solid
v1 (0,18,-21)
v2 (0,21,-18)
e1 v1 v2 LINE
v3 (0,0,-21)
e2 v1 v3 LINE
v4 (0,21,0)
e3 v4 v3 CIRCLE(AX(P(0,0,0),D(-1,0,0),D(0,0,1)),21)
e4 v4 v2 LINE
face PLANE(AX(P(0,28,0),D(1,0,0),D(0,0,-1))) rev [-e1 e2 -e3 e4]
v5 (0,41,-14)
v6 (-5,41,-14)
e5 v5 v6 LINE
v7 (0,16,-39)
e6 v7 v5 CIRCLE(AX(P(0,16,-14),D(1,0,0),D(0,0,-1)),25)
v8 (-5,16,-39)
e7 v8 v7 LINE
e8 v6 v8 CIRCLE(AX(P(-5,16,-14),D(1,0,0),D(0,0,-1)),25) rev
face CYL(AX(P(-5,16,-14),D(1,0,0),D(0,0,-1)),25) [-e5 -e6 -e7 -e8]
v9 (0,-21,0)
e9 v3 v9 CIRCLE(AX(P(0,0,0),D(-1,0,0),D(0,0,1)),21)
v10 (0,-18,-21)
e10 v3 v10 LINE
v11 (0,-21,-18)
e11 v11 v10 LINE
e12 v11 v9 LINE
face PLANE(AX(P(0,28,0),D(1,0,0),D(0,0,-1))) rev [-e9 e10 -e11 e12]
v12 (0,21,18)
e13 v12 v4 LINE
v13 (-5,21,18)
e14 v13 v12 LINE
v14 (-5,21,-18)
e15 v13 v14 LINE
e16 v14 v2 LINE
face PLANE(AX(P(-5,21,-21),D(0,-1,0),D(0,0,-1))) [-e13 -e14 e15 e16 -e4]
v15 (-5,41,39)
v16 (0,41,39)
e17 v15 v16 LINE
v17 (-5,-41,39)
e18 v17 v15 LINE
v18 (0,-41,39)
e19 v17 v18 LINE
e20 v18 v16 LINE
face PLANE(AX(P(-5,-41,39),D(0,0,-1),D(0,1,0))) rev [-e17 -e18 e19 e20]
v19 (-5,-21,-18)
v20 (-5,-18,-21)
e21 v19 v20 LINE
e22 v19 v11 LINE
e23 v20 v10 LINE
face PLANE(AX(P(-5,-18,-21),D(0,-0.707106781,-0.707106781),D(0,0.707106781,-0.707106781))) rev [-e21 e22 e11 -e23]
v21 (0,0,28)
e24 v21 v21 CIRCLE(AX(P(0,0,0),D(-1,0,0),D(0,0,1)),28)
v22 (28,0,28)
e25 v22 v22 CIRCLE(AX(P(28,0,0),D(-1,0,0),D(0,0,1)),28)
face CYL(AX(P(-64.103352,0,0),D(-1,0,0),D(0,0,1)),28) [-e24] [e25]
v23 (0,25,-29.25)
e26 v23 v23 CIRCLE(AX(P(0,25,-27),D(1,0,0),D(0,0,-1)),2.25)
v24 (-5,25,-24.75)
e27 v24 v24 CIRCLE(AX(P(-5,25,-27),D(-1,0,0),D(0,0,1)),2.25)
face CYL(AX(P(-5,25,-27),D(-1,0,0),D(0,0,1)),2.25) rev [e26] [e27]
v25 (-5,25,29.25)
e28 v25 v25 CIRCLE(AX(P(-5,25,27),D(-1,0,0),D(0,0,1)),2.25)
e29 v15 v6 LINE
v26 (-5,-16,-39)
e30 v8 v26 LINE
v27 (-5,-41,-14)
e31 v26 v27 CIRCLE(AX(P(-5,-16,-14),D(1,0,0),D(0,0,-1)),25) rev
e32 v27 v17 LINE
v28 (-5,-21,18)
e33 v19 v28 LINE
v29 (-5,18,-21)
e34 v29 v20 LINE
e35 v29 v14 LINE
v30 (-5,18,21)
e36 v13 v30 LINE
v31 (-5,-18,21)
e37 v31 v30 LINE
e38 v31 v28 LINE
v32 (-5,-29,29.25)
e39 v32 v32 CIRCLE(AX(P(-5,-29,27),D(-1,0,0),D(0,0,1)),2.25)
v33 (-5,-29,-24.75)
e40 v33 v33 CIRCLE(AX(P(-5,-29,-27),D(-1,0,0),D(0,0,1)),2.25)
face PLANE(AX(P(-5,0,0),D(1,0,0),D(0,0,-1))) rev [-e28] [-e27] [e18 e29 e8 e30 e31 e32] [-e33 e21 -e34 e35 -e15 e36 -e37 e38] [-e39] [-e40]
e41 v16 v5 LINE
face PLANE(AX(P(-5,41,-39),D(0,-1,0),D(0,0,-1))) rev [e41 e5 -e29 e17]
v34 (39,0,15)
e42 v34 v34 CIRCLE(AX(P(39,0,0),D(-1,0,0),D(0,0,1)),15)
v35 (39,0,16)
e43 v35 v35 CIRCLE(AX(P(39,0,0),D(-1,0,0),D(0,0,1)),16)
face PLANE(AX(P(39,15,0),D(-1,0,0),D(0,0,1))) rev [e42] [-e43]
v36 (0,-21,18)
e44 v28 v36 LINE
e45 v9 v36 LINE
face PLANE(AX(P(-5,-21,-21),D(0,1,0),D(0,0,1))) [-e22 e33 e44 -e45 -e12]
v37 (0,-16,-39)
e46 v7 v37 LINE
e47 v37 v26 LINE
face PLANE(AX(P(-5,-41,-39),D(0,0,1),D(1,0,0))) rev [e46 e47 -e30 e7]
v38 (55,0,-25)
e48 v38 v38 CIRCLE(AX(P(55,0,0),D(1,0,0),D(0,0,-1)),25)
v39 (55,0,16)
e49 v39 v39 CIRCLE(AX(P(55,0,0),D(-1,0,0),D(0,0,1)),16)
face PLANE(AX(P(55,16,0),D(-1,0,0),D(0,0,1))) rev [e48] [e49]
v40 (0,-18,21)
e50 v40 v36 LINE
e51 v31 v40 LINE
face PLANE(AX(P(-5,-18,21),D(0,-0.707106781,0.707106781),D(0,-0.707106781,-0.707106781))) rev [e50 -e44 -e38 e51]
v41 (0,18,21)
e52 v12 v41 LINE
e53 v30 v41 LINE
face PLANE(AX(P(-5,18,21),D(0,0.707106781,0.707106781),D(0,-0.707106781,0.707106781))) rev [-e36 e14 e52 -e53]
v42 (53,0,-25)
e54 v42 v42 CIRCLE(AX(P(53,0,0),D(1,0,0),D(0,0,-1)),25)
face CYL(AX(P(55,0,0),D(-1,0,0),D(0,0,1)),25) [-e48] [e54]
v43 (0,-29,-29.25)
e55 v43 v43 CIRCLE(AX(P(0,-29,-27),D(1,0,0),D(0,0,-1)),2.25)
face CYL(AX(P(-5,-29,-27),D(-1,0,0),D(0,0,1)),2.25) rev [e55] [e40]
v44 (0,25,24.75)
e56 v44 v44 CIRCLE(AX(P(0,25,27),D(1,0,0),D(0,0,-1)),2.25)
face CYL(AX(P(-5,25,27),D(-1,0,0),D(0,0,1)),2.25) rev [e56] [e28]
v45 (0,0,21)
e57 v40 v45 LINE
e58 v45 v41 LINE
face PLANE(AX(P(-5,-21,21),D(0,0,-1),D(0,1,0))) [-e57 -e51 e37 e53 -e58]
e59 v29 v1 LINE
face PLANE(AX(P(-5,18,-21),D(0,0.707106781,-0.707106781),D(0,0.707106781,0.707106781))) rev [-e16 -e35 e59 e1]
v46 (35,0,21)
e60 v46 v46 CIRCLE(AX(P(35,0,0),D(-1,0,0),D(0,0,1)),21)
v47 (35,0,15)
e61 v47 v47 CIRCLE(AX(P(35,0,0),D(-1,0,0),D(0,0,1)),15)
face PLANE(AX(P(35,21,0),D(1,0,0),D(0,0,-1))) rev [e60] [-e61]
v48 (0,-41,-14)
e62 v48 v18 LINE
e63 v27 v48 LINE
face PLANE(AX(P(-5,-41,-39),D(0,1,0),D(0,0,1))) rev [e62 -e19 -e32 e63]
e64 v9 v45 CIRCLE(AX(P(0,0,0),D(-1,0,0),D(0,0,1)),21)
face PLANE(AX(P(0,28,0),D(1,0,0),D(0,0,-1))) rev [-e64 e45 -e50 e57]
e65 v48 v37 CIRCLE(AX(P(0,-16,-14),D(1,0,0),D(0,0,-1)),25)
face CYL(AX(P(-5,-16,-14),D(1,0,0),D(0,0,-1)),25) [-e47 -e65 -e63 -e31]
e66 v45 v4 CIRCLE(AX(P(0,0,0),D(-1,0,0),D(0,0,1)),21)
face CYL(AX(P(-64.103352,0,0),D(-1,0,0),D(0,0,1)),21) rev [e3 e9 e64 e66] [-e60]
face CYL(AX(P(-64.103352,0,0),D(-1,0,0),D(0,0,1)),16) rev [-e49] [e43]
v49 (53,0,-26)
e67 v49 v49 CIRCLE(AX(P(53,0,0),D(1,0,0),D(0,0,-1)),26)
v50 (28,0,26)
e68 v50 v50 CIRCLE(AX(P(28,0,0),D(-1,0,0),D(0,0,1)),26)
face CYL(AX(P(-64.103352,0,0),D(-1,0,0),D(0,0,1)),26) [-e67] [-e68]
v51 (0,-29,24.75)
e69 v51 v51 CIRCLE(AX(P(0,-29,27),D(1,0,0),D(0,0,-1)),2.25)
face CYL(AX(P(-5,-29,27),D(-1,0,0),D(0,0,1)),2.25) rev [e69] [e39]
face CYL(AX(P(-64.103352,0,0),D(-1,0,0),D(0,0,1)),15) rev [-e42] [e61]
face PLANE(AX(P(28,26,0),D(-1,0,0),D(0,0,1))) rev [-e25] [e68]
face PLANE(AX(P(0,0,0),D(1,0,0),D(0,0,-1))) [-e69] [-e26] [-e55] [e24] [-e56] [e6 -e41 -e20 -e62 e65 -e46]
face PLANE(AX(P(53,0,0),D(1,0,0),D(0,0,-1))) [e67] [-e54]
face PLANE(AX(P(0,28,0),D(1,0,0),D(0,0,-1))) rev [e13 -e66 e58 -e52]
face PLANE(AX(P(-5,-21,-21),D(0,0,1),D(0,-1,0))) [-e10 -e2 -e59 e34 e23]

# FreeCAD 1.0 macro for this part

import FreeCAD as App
import Part
import Sketcher


def edges_at(feature, points):
    """Names of the edges that pass closest to the given points."""
    edges = feature.Shape.Edges
    near = lambda p: min(range(len(edges)), key=lambda i: edges[i].distToShape(Part.Vertex(*p))[0])
    return sorted({f"Edge{near(p) + 1}" for p in points})


def add_polygon(sketch, points):
    """Adds a closed chain of lines whose ends are joined by coincident constraints."""
    first, n = sketch.GeometryCount, len(points)
    for a, b in zip(points, points[1:] + points[:1]):
        sketch.addGeometry(Part.LineSegment(App.Vector(*a, 0), App.Vector(*b, 0)), False)
    for i in range(n):
        sketch.addConstraint(Sketcher.Constraint("Coincident", first + i, 2, first + (i + 1) % n, 1))

doc = App.newDocument("Part")
body = doc.addObject("PartDesign::Body", "Body")

# Sketch on XY plane
sketch1 = doc.addObject("Sketcher::SketchObject", "Sketch")
body.addObject(sketch1)
sketch1.AttachmentSupport = (doc.XY_Plane, [""])
sketch1.MapMode = "FlatFace"
add_polygon(sketch1, [(0, 21), (35, 21), (35, 15), (39, 15), (39, 16), (55, 16), (55, 26), (28, 26), (28, 28), (0, 28)])  # lines 0-9
sketch1.addConstraint([
    Sketcher.Constraint("Horizontal", 0),
    Sketcher.Constraint("Vertical", 1),
    Sketcher.Constraint("Horizontal", 2),
    Sketcher.Constraint("Vertical", 3),
    Sketcher.Constraint("Horizontal", 4),
    Sketcher.Constraint("Vertical", 5),
    Sketcher.Constraint("Horizontal", 6),
    Sketcher.Constraint("Vertical", 7),
    Sketcher.Constraint("Horizontal", 8),
    Sketcher.Constraint("Vertical", 9),
    Sketcher.Constraint("PointOnObject", 8, 2, -2),
    Sketcher.Constraint("DistanceX", 0, 1, 0, 2, 35.0),
    Sketcher.Constraint("DistanceX", 2, 1, 2, 2, 4.0),
    Sketcher.Constraint("DistanceX", 4, 1, 4, 2, 16.0),
    Sketcher.Constraint("DistanceX", 6, 2, 6, 1, 27.0),
    Sketcher.Constraint("DistanceY", 1, 2, 1, 1, 6.0),
    Sketcher.Constraint("DistanceY", 3, 1, 3, 2, 1.0),
    Sketcher.Constraint("DistanceY", 5, 1, 5, 2, 10.0),
    Sketcher.Constraint("DistanceY", 7, 1, 7, 2, 2.0),
    Sketcher.Constraint("DistanceY", -1, 1, 0, 2, 21.0),
])
revolution = doc.addObject("PartDesign::Revolution", "Revolution")
body.addObject(revolution)
revolution.Profile = sketch1
revolution.ReferenceAxis = (sketch1, ["H_Axis"])
revolution.Angle = 360

# Sketch on YZ plane
sketch2 = doc.addObject("Sketcher::SketchObject", "Sketch001")
body.addObject(sketch2)
sketch2.AttachmentSupport = (doc.YZ_Plane, [""])
sketch2.MapMode = "FlatFace"
sketch2.AttachmentOffset = App.Placement(App.Vector(0, 0, 53), App.Rotation())
sketch2.addGeometry([
    Part.Circle(App.Vector(0, 0, 0), App.Vector(0, 0, 1), 28),
    Part.Circle(App.Vector(0, 0, 0), App.Vector(0, 0, 1), 25),
], False)
sketch2.addConstraint([
    Sketcher.Constraint("Coincident", 0, 3, -1, 1),
    Sketcher.Constraint("Coincident", 1, 3, -1, 1),
    Sketcher.Constraint("Diameter", 0, 55.0),
    Sketcher.Constraint("Diameter", 1, 50.0),
])
pocket1 = doc.addObject("PartDesign::Pocket", "Pocket")
body.addObject(pocket1)
pocket1.Profile = sketch2
pocket1.Length = 2
pocket1.Reversed = True

# Sketch on YZ plane
sketch3 = doc.addObject("Sketcher::SketchObject", "Sketch002")
body.addObject(sketch3)
sketch3.AttachmentSupport = (doc.YZ_Plane, [""])
sketch3.MapMode = "FlatFace"
add_polygon(sketch3, [(41, -39), (-41, -39), (-41, 39), (41, 39)])  # lines 0-3
add_polygon(sketch3, [(-21, 21), (-21, -21), (21, -21), (21, 21)])  # lines 4-7
sketch3.addConstraint([
    Sketcher.Constraint("Horizontal", 0),
    Sketcher.Constraint("Vertical", 1),
    Sketcher.Constraint("Horizontal", 2),
    Sketcher.Constraint("Vertical", 3),
    Sketcher.Constraint("Vertical", 4),
    Sketcher.Constraint("Horizontal", 5),
    Sketcher.Constraint("Vertical", 6),
    Sketcher.Constraint("Horizontal", 7),
    Sketcher.Constraint("Symmetric", 0, 2, 2, 2, -1, 1),
    Sketcher.Constraint("Symmetric", 4, 2, 6, 2, -1, 1),
    Sketcher.Constraint("Equal", 7, 4),
    Sketcher.Constraint("DistanceX", 0, 2, 0, 1, 82.0),
    Sketcher.Constraint("DistanceX", 5, 1, 5, 2, 42.0),
    Sketcher.Constraint("DistanceY", 1, 1, 1, 2, 78.0),
])
pad1 = doc.addObject("PartDesign::Pad", "Pad")
body.addObject(pad1)
pad1.Profile = sketch3
pad1.Length = 5
pad1.Reversed = True

# Sketch on YZ plane
sketch4 = doc.addObject("Sketcher::SketchObject", "Sketch003")
body.addObject(sketch4)
sketch4.AttachmentSupport = (doc.YZ_Plane, [""])
sketch4.MapMode = "FlatFace"
sketch4.AttachmentOffset = App.Placement(App.Vector(0, 0, -5), App.Rotation())
sketch4.addGeometry([
    Part.Circle(App.Vector(25, -27, 0), App.Vector(0, 0, 1), 2.2),
    Part.Circle(App.Vector(25, 27, 0), App.Vector(0, 0, 1), 2.2),
    Part.Circle(App.Vector(-29, 27, 0), App.Vector(0, 0, 1), 2.2),
    Part.Circle(App.Vector(-29, -27, 0), App.Vector(0, 0, 1), 2.2),
], False)
sketch4.addConstraint([
    Sketcher.Constraint("Equal", 0, 1),
    Sketcher.Constraint("Equal", 1, 2),
    Sketcher.Constraint("Equal", 2, 3),
    Sketcher.Constraint("Symmetric", 0, 3, 1, 3, -1),
    Sketcher.Constraint("Symmetric", 2, 3, 3, 3, -1),
    Sketcher.Constraint("Horizontal", 1, 3, 2, 3),
    Sketcher.Constraint("Diameter", 0, 4.5),
    Sketcher.Constraint("DistanceX", -1, 1, 0, 3, 25.0),
    Sketcher.Constraint("DistanceY", 0, 3, -1, 1, 27.0),
    Sketcher.Constraint("DistanceX", 2, 3, -1, 1, 29.0),
])
doc.recompute()
hole = doc.addObject("PartDesign::Hole", "Hole")
body.addObject(hole)
hole.Profile = sketch4
hole.ThreadType = "None"
hole.Diameter = 4.5
hole.DepthType = "Dimension"
hole.Depth = 5
hole.DrillPoint = "Flat"
hole.Reversed = True

# Sketch on YZ plane
sketch5 = doc.addObject("Sketcher::SketchObject", "Sketch004")
body.addObject(sketch5)
sketch5.AttachmentSupport = (doc.YZ_Plane, [""])
sketch5.MapMode = "FlatFace"
add_polygon(sketch5, [(18, -21), (21, -18), (21, -21)])  # lines 0-2
add_polygon(sketch5, [(18, 21), (21, 21), (21, 18)])  # lines 3-5
add_polygon(sketch5, [(-21, 21), (-18, 21), (-21, 18)])  # lines 6-8
add_polygon(sketch5, [(-18, -21), (-21, -21), (-21, -18)])  # lines 9-11
sketch5.addConstraint([
    Sketcher.Constraint("Vertical", 1),
    Sketcher.Constraint("Horizontal", 2),
    Sketcher.Constraint("Horizontal", 3),
    Sketcher.Constraint("Vertical", 4),
    Sketcher.Constraint("Horizontal", 6),
    Sketcher.Constraint("Vertical", 8),
    Sketcher.Constraint("Horizontal", 9),
    Sketcher.Constraint("Vertical", 10),
    Sketcher.Constraint("Symmetric", 2, 2, 6, 2, -1, 1),
    Sketcher.Constraint("Symmetric", 0, 2, 7, 2, -1, 1),
    Sketcher.Constraint("Symmetric", 3, 2, 9, 2, -1, 1),
    Sketcher.Constraint("Symmetric", 5, 2, 6, 2, -2),
    Sketcher.Constraint("Symmetric", 4, 2, 7, 2, -2),
    Sketcher.Constraint("Perpendicular", 0, 5),
    Sketcher.Constraint("Perpendicular", 7, 11),
    Sketcher.Constraint("Horizontal", 0, 2, 10, 2),
    Sketcher.Constraint("DistanceX", 2, 2, 2, 1, 3.0),
    Sketcher.Constraint("DistanceX", -1, 1, 0, 2, 21.0),
    Sketcher.Constraint("DistanceY", 0, 2, -1, 1, 18.0),
])
pad2 = doc.addObject("PartDesign::Pad", "Pad001")
body.addObject(pad2)
pad2.Profile = sketch5
pad2.Length = 5
pad2.Reversed = True
doc.recompute()

fillet = doc.addObject("PartDesign::Fillet", "Fillet")
body.addObject(fillet)
fillet.Base = (pad2, edges_at(pad2, [(-2.5, 41, -39), (-2.5, -41, -39)]))
fillet.Radius = 25

doc.recompute()
